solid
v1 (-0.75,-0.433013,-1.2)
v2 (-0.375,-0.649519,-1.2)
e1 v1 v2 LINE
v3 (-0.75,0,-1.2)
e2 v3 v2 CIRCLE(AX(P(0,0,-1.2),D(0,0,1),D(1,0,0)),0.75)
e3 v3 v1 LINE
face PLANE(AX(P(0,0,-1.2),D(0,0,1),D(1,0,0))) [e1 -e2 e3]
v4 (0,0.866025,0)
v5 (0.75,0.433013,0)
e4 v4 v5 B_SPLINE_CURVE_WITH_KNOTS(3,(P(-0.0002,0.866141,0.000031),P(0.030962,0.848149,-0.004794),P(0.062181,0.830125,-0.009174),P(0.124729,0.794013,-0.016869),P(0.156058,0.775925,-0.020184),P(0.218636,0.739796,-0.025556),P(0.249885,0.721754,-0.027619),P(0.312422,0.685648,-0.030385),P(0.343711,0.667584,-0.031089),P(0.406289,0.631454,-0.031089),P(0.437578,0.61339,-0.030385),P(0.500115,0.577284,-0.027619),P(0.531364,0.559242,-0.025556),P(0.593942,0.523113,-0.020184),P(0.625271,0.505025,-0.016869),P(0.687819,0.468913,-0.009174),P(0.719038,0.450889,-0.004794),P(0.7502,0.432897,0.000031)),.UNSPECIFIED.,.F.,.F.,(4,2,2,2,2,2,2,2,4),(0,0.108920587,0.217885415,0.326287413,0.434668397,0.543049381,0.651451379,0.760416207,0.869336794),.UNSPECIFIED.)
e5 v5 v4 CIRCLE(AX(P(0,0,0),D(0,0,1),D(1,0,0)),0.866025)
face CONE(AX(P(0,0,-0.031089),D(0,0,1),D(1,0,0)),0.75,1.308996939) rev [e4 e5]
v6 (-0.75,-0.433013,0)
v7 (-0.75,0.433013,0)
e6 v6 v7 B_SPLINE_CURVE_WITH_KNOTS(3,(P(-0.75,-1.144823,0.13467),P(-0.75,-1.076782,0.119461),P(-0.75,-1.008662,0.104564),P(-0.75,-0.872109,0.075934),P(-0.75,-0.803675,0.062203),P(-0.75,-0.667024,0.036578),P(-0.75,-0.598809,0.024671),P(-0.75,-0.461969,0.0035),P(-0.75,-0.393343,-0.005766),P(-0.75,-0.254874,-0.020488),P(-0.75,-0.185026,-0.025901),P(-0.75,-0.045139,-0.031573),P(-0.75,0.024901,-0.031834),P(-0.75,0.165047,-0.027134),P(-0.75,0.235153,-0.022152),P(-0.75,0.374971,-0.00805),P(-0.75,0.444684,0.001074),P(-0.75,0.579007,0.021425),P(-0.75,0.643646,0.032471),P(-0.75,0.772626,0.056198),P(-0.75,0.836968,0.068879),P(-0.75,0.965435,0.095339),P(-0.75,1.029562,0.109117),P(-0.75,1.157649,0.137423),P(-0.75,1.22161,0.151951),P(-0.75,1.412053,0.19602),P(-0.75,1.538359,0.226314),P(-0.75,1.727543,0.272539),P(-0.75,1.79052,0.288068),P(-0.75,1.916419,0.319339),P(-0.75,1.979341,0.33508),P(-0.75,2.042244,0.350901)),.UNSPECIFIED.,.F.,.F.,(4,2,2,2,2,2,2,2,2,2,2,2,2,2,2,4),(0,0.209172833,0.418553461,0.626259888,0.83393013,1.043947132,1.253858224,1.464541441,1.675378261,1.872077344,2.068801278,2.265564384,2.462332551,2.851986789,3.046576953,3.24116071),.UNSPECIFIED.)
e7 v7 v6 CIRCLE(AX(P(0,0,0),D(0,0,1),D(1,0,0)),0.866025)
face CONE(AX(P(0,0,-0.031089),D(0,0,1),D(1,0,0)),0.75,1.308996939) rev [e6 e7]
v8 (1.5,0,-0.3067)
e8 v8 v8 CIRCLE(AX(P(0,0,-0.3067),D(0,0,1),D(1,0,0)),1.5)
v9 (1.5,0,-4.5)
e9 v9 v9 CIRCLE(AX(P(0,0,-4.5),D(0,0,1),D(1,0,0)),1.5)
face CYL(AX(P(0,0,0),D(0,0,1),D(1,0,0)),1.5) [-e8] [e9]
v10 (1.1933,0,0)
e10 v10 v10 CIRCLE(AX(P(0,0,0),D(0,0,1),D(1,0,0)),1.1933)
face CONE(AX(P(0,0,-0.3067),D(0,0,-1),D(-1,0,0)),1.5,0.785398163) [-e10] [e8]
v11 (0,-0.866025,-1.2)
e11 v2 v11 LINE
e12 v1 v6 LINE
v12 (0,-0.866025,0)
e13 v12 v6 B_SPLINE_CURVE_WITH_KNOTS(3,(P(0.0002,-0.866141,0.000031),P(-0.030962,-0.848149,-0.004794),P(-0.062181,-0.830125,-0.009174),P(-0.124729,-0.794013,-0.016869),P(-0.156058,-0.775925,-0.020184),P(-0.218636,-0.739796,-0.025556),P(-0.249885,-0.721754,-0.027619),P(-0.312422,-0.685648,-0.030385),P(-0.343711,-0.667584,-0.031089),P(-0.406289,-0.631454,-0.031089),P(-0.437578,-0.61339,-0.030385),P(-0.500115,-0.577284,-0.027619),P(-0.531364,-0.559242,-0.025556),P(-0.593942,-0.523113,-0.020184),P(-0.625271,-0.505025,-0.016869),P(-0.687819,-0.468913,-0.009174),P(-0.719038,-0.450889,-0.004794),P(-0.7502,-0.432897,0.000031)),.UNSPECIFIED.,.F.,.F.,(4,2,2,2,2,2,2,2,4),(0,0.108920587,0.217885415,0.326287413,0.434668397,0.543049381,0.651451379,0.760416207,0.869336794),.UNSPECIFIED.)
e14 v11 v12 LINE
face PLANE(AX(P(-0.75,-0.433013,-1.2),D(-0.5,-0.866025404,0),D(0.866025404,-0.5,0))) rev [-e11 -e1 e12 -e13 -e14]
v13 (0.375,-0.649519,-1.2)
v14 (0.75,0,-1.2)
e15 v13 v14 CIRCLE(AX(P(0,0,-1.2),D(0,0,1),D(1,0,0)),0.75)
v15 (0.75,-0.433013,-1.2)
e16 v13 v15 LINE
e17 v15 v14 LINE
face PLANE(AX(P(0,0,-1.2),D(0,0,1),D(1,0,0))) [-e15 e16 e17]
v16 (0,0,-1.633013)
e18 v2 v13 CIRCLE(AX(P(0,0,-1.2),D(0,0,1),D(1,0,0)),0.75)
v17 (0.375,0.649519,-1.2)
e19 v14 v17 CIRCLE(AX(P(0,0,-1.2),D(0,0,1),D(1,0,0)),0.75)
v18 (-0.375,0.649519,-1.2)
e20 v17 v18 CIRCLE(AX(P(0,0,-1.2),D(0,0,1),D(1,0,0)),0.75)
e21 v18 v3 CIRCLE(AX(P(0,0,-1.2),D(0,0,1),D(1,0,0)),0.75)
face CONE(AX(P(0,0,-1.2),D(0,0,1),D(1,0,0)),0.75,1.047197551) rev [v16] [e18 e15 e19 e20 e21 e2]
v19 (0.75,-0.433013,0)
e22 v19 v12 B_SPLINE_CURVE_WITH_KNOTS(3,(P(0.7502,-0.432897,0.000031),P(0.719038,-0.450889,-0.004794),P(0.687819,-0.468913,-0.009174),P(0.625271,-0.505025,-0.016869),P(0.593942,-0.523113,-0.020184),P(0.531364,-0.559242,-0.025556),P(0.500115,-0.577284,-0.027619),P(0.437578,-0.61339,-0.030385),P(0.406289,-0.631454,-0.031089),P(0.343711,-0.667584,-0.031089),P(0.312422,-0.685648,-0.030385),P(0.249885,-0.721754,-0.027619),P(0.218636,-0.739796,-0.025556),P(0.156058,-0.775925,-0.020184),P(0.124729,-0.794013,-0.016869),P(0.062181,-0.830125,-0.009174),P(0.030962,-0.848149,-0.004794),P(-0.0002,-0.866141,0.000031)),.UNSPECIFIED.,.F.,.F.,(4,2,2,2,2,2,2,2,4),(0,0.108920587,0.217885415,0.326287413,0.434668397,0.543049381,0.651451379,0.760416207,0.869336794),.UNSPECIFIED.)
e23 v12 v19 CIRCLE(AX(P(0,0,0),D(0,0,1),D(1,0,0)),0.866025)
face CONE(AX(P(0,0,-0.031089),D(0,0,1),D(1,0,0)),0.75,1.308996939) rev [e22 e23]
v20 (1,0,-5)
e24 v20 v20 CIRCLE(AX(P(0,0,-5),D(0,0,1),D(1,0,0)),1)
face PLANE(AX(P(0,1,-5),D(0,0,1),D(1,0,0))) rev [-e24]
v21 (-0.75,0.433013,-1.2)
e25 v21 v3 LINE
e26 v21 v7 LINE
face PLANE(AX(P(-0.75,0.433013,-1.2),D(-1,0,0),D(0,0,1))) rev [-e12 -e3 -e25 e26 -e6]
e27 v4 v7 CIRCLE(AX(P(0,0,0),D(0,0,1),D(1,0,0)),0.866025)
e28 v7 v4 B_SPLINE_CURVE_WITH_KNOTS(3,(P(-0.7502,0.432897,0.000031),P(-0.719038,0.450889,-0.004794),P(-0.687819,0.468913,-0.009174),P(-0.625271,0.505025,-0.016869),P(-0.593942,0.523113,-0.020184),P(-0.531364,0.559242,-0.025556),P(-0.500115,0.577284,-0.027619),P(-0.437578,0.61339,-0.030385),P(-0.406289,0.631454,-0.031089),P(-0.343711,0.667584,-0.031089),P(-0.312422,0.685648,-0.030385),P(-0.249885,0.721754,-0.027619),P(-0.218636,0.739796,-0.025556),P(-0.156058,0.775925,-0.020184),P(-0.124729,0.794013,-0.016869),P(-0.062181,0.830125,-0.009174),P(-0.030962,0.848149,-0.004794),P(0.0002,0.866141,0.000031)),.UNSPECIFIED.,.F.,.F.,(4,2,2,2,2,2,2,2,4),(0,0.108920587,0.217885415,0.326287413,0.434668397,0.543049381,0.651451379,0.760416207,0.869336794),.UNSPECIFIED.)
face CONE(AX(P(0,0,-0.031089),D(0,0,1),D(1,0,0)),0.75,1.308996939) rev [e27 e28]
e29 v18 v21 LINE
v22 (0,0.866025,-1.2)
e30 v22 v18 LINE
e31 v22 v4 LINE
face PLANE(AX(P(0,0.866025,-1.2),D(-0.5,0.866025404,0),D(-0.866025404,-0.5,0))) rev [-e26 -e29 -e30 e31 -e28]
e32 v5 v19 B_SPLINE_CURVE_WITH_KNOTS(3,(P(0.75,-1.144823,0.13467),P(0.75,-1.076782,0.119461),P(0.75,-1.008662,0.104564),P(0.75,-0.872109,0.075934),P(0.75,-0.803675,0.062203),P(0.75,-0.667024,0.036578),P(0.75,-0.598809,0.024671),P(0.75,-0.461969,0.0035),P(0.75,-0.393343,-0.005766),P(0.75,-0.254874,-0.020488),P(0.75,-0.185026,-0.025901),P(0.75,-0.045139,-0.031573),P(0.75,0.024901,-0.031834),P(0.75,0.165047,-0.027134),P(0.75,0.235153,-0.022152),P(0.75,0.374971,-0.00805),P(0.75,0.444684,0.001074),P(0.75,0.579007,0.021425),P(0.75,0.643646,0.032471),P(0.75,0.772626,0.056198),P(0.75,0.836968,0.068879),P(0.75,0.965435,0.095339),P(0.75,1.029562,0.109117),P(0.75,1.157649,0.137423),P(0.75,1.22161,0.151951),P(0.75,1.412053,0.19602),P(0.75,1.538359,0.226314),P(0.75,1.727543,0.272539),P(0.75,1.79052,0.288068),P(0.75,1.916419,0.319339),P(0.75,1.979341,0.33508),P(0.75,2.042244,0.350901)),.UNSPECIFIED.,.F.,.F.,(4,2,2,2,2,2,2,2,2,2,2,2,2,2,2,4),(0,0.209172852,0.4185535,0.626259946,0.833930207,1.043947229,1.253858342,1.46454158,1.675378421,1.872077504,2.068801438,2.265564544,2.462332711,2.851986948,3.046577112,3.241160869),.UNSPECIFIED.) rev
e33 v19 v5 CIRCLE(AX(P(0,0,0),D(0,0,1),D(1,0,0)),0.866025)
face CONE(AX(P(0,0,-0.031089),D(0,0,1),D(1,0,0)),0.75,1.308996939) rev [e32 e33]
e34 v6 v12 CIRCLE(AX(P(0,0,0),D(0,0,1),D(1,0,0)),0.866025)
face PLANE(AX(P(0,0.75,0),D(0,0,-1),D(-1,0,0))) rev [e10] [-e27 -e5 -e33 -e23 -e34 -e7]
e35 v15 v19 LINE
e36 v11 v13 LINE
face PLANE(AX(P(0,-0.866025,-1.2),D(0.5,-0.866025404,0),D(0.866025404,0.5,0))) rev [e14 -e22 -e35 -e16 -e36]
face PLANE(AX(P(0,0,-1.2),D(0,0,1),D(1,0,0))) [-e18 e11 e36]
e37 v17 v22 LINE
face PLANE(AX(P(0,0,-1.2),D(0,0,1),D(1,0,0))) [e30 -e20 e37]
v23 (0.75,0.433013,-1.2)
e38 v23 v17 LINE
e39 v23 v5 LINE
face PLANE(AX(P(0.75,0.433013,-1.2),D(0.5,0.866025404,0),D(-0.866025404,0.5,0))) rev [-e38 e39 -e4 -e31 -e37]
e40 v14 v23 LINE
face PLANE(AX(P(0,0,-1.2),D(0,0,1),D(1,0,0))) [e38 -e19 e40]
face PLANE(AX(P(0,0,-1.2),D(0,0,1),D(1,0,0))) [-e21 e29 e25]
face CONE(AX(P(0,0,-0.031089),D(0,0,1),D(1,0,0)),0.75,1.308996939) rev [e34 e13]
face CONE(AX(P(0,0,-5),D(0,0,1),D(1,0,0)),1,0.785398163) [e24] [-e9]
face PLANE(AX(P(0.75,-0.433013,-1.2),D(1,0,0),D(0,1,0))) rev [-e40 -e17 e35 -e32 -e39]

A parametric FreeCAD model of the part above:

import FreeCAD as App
import Part
import Sketcher

V = App.Vector
Q = App.Units.Quantity


def add_polygon(sketch, points):
    """Adds a closed chain of lines whose ends are joined by coincident constraints."""
    first, n = sketch.GeometryCount, len(points)
    for a, b in zip(points, points[1:] + points[:1]):
        sketch.addGeometry(Part.LineSegment(App.Vector(*a, 0), App.Vector(*b, 0)), False)
    for i in range(n):
        sketch.addConstraint(Sketcher.Constraint("Coincident", first + i, 2, first + (i + 1) % n, 1))

doc = App.newDocument("Part")
body = doc.addObject("PartDesign::Body", "Body")

sketch1 = body.newObject("Sketcher::SketchObject", "Sketch")
sketch1.AttachmentSupport = (doc.getObject("YZ_Plane"), [""])
sketch1.MapMode = "FlatFace"
add_polygon(sketch1, [(1.5, -4.5), (1.5, -0.31), (1.19, 0), (0.75, 0), (0.75, -1.2), (0, -1.63), (0, -5), (1, -5)])
sketch1.addConstraint([
    Sketcher.Constraint("Vertical", 0),
    Sketcher.Constraint("Horizontal", 2),
    Sketcher.Constraint("Vertical", 3),
    Sketcher.Constraint("Vertical", 5),
    Sketcher.Constraint("Horizontal", 6),
    Sketcher.Constraint("PointOnObject", 1, 2, -1),
    Sketcher.Constraint("PointOnObject", 4, 2, -2),
    Sketcher.Constraint("Perpendicular", 1, 7),
    Sketcher.Constraint("DistanceX", 6, 1, 6, 2, Q("1 mm")),
    Sketcher.Constraint("Angle", 1, Q("135 deg")),
    Sketcher.Constraint("Angle", 4, Q("-150 deg")),
    Sketcher.Constraint("DistanceY", 3, 2, 3, 1, Q("1.2 mm")),
    Sketcher.Constraint("DistanceY", 5, 2, -1, 1, Q("5 mm")),
    Sketcher.Constraint("DistanceX", -1, 1, 0, 2, Q("1.5 mm")),
    Sketcher.Constraint("DistanceX", -1, 1, 2, 2, Q("0.75 mm")),
    Sketcher.Constraint("DistanceX", 2, 2, 2, 1, Q("0.4433 mm")),
])
revolution = body.newObject("PartDesign::Revolution", "Revolution")
revolution.Profile = sketch1
revolution.ReferenceAxis = (sketch1, ["V_Axis"])
revolution.Angle = 360

sketch2 = body.newObject("Sketcher::SketchObject", "Sketch001")
sketch2.AttachmentSupport = (doc.getObject("XY_Plane"), [""])
sketch2.MapMode = "FlatFace"
add_polygon(sketch2, [(0, 0.9), (-0.8, 0.4), (-0.8, -0.4), (0, -0.9), (0.8, -0.4), (0.8, 0.4)])
sketch2.addConstraint([
    Sketcher.Constraint("Vertical", 1),
    Sketcher.Constraint("Vertical", 4),
    Sketcher.Constraint("Symmetric", 0, 2, 3, 2, -1, 1),
    Sketcher.Constraint("Symmetric", 2, 2, 5, 2, -1, 1),
    Sketcher.Constraint("PointOnObject", 2, 2, -2),
    Sketcher.Constraint("Parallel", 2, 5),
    Sketcher.Constraint("Horizontal", 1, 2, 3, 2),
    Sketcher.Constraint("Angle", 0, Q("-150 deg")),
    Sketcher.Constraint("DistanceX", 1, 2, 3, 2, Q("1.5 mm")),
    Sketcher.Constraint("DistanceY", 1, 2, 1, 1, Q("0.866025 mm")),
])
pocket1 = body.newObject("PartDesign::Pocket", "Pocket")
pocket1.Profile = sketch2
pocket1.Length = 1.2

sketch3 = body.newObject("Sketcher::SketchObject", "Sketch002")
sketch3.AttachmentSupport = (doc.getObject("YZ_Plane"), [""])
sketch3.MapMode = "FlatFace"
add_polygon(sketch3, [(0.866, 0), (0.75, 0), (0.75, -0.031)])
sketch3.addConstraint([
    Sketcher.Constraint("Horizontal", 0),
    Sketcher.Constraint("Vertical", 1),
    Sketcher.Constraint("PointOnObject", 0, 2, -1),
    Sketcher.Constraint("Angle", 2, Q("15 deg")),
    Sketcher.Constraint("DistanceX", -1, 1, 0, 2, Q("0.75 mm")),
    Sketcher.Constraint("DistanceY", 1, 2, 1, 1, Q("0.031089 mm")),
])
groove = body.newObject("PartDesign::Groove", "Groove")
groove.Profile = sketch3
groove.ReferenceAxis = (sketch3, ["V_Axis"])
groove.Angle = 360

doc.recompute()
